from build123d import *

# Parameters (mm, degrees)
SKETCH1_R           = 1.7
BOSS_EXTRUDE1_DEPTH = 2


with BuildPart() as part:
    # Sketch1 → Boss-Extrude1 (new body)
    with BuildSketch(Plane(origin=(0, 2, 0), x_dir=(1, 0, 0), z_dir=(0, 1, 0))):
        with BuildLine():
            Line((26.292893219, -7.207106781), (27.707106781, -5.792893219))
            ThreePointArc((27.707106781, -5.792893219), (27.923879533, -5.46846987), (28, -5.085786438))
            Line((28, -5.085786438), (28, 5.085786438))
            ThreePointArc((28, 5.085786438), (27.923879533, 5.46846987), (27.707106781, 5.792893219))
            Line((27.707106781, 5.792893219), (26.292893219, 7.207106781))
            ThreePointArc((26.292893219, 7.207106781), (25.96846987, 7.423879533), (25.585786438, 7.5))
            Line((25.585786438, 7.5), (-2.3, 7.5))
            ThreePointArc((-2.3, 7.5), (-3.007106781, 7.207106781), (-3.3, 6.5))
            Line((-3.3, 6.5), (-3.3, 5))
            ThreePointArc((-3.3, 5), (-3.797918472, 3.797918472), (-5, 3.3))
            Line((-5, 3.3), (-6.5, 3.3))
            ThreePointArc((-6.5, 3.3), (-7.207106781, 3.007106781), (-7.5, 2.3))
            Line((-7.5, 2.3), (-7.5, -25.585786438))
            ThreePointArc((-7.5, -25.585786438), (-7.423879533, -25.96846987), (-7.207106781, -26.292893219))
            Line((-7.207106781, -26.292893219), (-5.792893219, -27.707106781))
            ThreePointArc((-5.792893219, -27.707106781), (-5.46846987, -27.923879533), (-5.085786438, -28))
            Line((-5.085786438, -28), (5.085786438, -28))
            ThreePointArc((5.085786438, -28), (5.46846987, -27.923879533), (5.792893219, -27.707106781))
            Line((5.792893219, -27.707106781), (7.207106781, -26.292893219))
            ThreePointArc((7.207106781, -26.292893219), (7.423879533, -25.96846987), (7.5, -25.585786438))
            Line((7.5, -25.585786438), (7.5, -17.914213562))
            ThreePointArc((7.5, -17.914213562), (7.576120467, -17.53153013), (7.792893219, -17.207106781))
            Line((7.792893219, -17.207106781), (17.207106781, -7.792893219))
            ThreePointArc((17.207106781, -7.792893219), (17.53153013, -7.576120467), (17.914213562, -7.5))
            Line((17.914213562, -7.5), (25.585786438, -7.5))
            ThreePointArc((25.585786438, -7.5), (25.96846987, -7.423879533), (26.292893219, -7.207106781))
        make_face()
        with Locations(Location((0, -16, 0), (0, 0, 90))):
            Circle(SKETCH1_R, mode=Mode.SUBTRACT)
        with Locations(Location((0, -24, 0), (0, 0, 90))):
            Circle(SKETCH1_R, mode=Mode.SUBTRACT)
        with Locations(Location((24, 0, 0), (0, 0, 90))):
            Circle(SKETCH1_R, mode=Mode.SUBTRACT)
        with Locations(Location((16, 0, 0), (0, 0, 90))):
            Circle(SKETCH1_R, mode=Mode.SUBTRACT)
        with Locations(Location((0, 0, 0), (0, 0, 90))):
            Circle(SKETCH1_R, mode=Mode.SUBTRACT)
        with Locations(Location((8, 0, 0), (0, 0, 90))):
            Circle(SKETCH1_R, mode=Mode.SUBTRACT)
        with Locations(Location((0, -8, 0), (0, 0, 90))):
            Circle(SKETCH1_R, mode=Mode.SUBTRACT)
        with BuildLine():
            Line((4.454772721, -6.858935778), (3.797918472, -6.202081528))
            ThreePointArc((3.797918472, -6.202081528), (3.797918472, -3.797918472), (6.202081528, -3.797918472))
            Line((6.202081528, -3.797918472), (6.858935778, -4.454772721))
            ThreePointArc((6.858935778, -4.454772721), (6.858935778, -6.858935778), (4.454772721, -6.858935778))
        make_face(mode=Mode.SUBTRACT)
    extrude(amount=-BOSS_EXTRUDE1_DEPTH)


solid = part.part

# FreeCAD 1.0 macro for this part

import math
import FreeCAD as App
import Part
import Sketcher
from FreeCAD import Vector

doc = App.newDocument("Part")
body = doc.addObject("PartDesign::Body", "Body")

# Sketch on XZ plane
sketch1 = body.newObject("Sketcher::SketchObject", "Sketch")
sketch1.AttachmentSupport = (doc.getObject("XZ_Plane"), [""])
sketch1.MapMode = "FlatFace"
sketch1.AttachmentOffset = App.Placement(Vector(0, 0, -2), App.Rotation())
sketch1.addGeometry([
    Part.LineSegment(Vector(26.3, 7.2, 0), Vector(27.7, 5.8, 0)),  # 0
    Part.ArcOfCircle(Part.Circle(Vector(27, 5.1, 0), Vector(0, 0, 1), 1), math.radians(0), math.radians(45)),  # 1
    Part.LineSegment(Vector(28, 5.1, 0), Vector(28, -5.1, 0)),  # 2
    Part.ArcOfCircle(Part.Circle(Vector(27, -5.1, 0), Vector(0, 0, 1), 1), math.radians(-45), math.radians(0)),  # 3
    Part.LineSegment(Vector(27.7, -5.8, 0), Vector(26.3, -7.2, 0)),  # 4
    Part.ArcOfCircle(Part.Circle(Vector(25.6, -6.5, 0), Vector(0, 0, 1), 1), math.radians(-90), math.radians(-45)),  # 5
    Part.LineSegment(Vector(25.6, -7.5, 0), Vector(-2.3, -7.5, 0)),  # 6
    Part.ArcOfCircle(Part.Circle(Vector(-2.3, -6.5, 0), Vector(0, 0, 1), 1), math.radians(-180), math.radians(-90)),  # 7
    Part.LineSegment(Vector(-3.3, -6.5, 0), Vector(-3.3, -5, 0)),  # 8
    Part.ArcOfCircle(Part.Circle(Vector(-5, -5, 0), Vector(0, 0, 1), 1.7), math.radians(0), math.radians(90)),  # 9
    Part.LineSegment(Vector(-5, -3.3, 0), Vector(-6.5, -3.3, 0)),  # 10
    Part.ArcOfCircle(Part.Circle(Vector(-6.5, -2.3, 0), Vector(0, 0, 1), 1), math.radians(-180), math.radians(-90)),  # 11
    Part.LineSegment(Vector(-7.5, -2.3, 0), Vector(-7.5, 25.6, 0)),  # 12
    Part.ArcOfCircle(Part.Circle(Vector(-6.5, 25.6, 0), Vector(0, 0, 1), 1), math.radians(135), math.radians(180)),  # 13
    Part.LineSegment(Vector(-7.2, 26.3, 0), Vector(-5.8, 27.7, 0)),  # 14
    Part.ArcOfCircle(Part.Circle(Vector(-5.1, 27, 0), Vector(0, 0, 1), 1), math.radians(90), math.radians(135)),  # 15
    Part.LineSegment(Vector(-5.1, 28, 0), Vector(5.1, 28, 0)),  # 16
    Part.ArcOfCircle(Part.Circle(Vector(5.1, 27, 0), Vector(0, 0, 1), 1), math.radians(45), math.radians(90)),  # 17
    Part.LineSegment(Vector(5.8, 27.7, 0), Vector(7.2, 26.3, 0)),  # 18
    Part.ArcOfCircle(Part.Circle(Vector(6.5, 25.6, 0), Vector(0, 0, 1), 1), math.radians(0), math.radians(45)),  # 19
    Part.LineSegment(Vector(7.5, 25.6, 0), Vector(7.5, 17.9, 0)),  # 20
    Part.ArcOfCircle(Part.Circle(Vector(8.5, 17.9, 0), Vector(0, 0, 1), 1), math.radians(180), math.radians(225)),  # 21
    Part.LineSegment(Vector(7.8, 17.2, 0), Vector(17.2, 7.8, 0)),  # 22
    Part.ArcOfCircle(Part.Circle(Vector(17.9, 8.5, 0), Vector(0, 0, 1), 1), math.radians(-135), math.radians(-90)),  # 23
    Part.LineSegment(Vector(17.9, 7.5, 0), Vector(25.6, 7.5, 0)),  # 24
    Part.ArcOfCircle(Part.Circle(Vector(25.6, 6.5, 0), Vector(0, 0, 1), 1), math.radians(45), math.radians(90)),  # 25
    Part.Circle(Vector(0, 24, 0), Vector(0, 0, 1), 1.7),  # 26
    Part.Circle(Vector(0, 16, 0), Vector(0, 0, 1), 1.7),  # 27
    Part.Circle(Vector(0, 8, 0), Vector(0, 0, 1), 1.7),  # 28
    Part.ArcOfCircle(Part.Circle(Vector(5.7, 5.7, 0), Vector(0, 0, 1), 1.7), math.radians(-45), math.radians(135)),  # 29
    Part.LineSegment(Vector(4.5, 6.9, 0), Vector(3.8, 6.2, 0)),  # 30
    Part.ArcOfCircle(Part.Circle(Vector(5, 5, 0), Vector(0, 0, 1), 1.7), math.radians(135), math.radians(315)),  # 31
    Part.LineSegment(Vector(6.2, 3.8, 0), Vector(6.9, 4.5, 0)),  # 32
    Part.Circle(Vector(0, 0, 0), Vector(0, 0, 1), 1.7),  # 33
    Part.Circle(Vector(8, 0, 0), Vector(0, 0, 1), 1.7),  # 34
    Part.Circle(Vector(16, 0, 0), Vector(0, 0, 1), 1.7),  # 35
    Part.Circle(Vector(24, 0, 0), Vector(0, 0, 1), 1.7),  # 36
], False)
sketch1.addConstraint([
    Sketcher.Constraint("Tangent", 0, 2, 1, 2),
    Sketcher.Constraint("Tangent", 1, 1, 2, 1),
    Sketcher.Constraint("Tangent", 2, 2, 3, 2),
    Sketcher.Constraint("Tangent", 3, 1, 4, 1),
    Sketcher.Constraint("Tangent", 4, 2, 5, 2),
    Sketcher.Constraint("Tangent", 5, 1, 6, 1),
    Sketcher.Constraint("Tangent", 6, 2, 7, 2),
    Sketcher.Constraint("Tangent", 7, 1, 8, 1),
    Sketcher.Constraint("Tangent", 8, 2, 9, 1),
    Sketcher.Constraint("Tangent", 9, 2, 10, 1),
    Sketcher.Constraint("Tangent", 10, 2, 11, 2),
    Sketcher.Constraint("Tangent", 11, 1, 12, 1),
    Sketcher.Constraint("Tangent", 12, 2, 13, 2),
    Sketcher.Constraint("Tangent", 13, 1, 14, 1),
    Sketcher.Constraint("Tangent", 14, 2, 15, 2),
    Sketcher.Constraint("Tangent", 15, 1, 16, 1),
    Sketcher.Constraint("Tangent", 16, 2, 17, 2),
    Sketcher.Constraint("Tangent", 17, 1, 18, 1),
    Sketcher.Constraint("Tangent", 18, 2, 19, 2),
    Sketcher.Constraint("Tangent", 19, 1, 20, 1),
    Sketcher.Constraint("Tangent", 20, 2, 21, 1),
    Sketcher.Constraint("Tangent", 21, 2, 22, 1),
    Sketcher.Constraint("Tangent", 22, 2, 23, 1),
    Sketcher.Constraint("Tangent", 23, 2, 24, 1),
    Sketcher.Constraint("Tangent", 24, 2, 25, 2),
    Sketcher.Constraint("Tangent", 25, 1, 0, 1),
    Sketcher.Constraint("Tangent", 29, 2, 30, 1),
    Sketcher.Constraint("Tangent", 30, 2, 31, 1),
    Sketcher.Constraint("Tangent", 31, 2, 32, 1),
    Sketcher.Constraint("Tangent", 32, 2, 29, 1),
    Sketcher.Constraint("Vertical", 2),
    Sketcher.Constraint("Horizontal", 6),
    Sketcher.Constraint("Vertical", 8),
    Sketcher.Constraint("Horizontal", 10),
    Sketcher.Constraint("Vertical", 12),
    Sketcher.Constraint("Horizontal", 16),
    Sketcher.Constraint("Vertical", 20),
    Sketcher.Constraint("Horizontal", 24),
    Sketcher.Constraint("Coincident", 33, 3, -1, 1),
    Sketcher.Constraint("Equal", 1, 3),
    Sketcher.Constraint("Equal", 3, 5),
    Sketcher.Constraint("Equal", 5, 7),
    Sketcher.Constraint("Equal", 7, 11),
    Sketcher.Constraint("Equal", 11, 13),
    Sketcher.Constraint("Equal", 13, 15),
    Sketcher.Constraint("Equal", 15, 17),
    Sketcher.Constraint("Equal", 17, 19),
    Sketcher.Constraint("Equal", 19, 21),
    Sketcher.Constraint("Equal", 21, 23),
    Sketcher.Constraint("Equal", 23, 25),
    Sketcher.Constraint("Equal", 9, 26),
    Sketcher.Constraint("Equal", 26, 27),
    Sketcher.Constraint("Equal", 27, 28),
    Sketcher.Constraint("Equal", 28, 29),
    Sketcher.Constraint("Equal", 29, 31),
    Sketcher.Constraint("Equal", 31, 33),
    Sketcher.Constraint("Equal", 33, 34),
    Sketcher.Constraint("Equal", 34, 35),
    Sketcher.Constraint("Equal", 35, 36),
    Sketcher.Constraint("Symmetric", 9, 3, 31, 3, -1, 1),
    Sketcher.Constraint("Symmetric", 13, 3, 19, 3, -2),
    Sketcher.Constraint("Symmetric", 5, 3, 25, 3, -1),
    Sketcher.Constraint("PointOnObject", 26, 3, -2),
    Sketcher.Constraint("PointOnObject", 27, 3, -2),
    Sketcher.Constraint("PointOnObject", 28, 3, -2),
    Sketcher.Constraint("PointOnObject", 34, 3, -1),
    Sketcher.Constraint("PointOnObject", 35, 3, -1),
    Sketcher.Constraint("PointOnObject", 36, 3, -1),
    Sketcher.Constraint("Perpendicular", 0, 4),
    Sketcher.Constraint("Parallel", 4, 14),
    Sketcher.Constraint("Perpendicular", 14, 18),
    Sketcher.Constraint("Parallel", 18, 22),
    Sketcher.Constraint("Perpendicular", 22, 30),
    Sketcher.Constraint("Horizontal", 14, 2, 17, 1),
    Sketcher.Constraint("Equal", 16, 2),
    Sketcher.Constraint("Equal", 10, 8),
    Sketcher.Constraint("Equal", 6, 12),
    Sketcher.Constraint("Equal", 24, 20),
    Sketcher.Constraint("Radius", 1, 1.0),
    Sketcher.Constraint("Diameter", 26, 3.4),
    Sketcher.Constraint("Distance", 0, 2.0),
    Sketcher.Constraint("DistanceX", 10, 2, 10, 1, 1.5),
    Sketcher.Constraint("DistanceX", -1, 1, 1, 3, 27.0),
    Sketcher.Constraint("DistanceX", 9, 3, -1, 1, 5.0),
    Sketcher.Constraint("DistanceY", -1, 1, 26, 3, 24.0),
    Sketcher.Constraint("DistanceY", -1, 1, 27, 3, 16.0),
    Sketcher.Constraint("DistanceY", -1, 1, 28, 3, 8.0),
    Sketcher.Constraint("DistanceX", -1, 1, 34, 3, 8.0),
    Sketcher.Constraint("DistanceX", -1, 1, 35, 3, 16.0),
    Sketcher.Constraint("DistanceX", -1, 1, 36, 3, 24.0),
    Sketcher.Constraint("Distance", 22, 13.313708),
    Sketcher.Constraint("DistanceY", 29, 3, 21, 3, 12.257359),
])
pad1 = body.newObject("PartDesign::Pad", "Pad")
pad1.Profile = sketch1
pad1.Length = 2

doc.recompute()
